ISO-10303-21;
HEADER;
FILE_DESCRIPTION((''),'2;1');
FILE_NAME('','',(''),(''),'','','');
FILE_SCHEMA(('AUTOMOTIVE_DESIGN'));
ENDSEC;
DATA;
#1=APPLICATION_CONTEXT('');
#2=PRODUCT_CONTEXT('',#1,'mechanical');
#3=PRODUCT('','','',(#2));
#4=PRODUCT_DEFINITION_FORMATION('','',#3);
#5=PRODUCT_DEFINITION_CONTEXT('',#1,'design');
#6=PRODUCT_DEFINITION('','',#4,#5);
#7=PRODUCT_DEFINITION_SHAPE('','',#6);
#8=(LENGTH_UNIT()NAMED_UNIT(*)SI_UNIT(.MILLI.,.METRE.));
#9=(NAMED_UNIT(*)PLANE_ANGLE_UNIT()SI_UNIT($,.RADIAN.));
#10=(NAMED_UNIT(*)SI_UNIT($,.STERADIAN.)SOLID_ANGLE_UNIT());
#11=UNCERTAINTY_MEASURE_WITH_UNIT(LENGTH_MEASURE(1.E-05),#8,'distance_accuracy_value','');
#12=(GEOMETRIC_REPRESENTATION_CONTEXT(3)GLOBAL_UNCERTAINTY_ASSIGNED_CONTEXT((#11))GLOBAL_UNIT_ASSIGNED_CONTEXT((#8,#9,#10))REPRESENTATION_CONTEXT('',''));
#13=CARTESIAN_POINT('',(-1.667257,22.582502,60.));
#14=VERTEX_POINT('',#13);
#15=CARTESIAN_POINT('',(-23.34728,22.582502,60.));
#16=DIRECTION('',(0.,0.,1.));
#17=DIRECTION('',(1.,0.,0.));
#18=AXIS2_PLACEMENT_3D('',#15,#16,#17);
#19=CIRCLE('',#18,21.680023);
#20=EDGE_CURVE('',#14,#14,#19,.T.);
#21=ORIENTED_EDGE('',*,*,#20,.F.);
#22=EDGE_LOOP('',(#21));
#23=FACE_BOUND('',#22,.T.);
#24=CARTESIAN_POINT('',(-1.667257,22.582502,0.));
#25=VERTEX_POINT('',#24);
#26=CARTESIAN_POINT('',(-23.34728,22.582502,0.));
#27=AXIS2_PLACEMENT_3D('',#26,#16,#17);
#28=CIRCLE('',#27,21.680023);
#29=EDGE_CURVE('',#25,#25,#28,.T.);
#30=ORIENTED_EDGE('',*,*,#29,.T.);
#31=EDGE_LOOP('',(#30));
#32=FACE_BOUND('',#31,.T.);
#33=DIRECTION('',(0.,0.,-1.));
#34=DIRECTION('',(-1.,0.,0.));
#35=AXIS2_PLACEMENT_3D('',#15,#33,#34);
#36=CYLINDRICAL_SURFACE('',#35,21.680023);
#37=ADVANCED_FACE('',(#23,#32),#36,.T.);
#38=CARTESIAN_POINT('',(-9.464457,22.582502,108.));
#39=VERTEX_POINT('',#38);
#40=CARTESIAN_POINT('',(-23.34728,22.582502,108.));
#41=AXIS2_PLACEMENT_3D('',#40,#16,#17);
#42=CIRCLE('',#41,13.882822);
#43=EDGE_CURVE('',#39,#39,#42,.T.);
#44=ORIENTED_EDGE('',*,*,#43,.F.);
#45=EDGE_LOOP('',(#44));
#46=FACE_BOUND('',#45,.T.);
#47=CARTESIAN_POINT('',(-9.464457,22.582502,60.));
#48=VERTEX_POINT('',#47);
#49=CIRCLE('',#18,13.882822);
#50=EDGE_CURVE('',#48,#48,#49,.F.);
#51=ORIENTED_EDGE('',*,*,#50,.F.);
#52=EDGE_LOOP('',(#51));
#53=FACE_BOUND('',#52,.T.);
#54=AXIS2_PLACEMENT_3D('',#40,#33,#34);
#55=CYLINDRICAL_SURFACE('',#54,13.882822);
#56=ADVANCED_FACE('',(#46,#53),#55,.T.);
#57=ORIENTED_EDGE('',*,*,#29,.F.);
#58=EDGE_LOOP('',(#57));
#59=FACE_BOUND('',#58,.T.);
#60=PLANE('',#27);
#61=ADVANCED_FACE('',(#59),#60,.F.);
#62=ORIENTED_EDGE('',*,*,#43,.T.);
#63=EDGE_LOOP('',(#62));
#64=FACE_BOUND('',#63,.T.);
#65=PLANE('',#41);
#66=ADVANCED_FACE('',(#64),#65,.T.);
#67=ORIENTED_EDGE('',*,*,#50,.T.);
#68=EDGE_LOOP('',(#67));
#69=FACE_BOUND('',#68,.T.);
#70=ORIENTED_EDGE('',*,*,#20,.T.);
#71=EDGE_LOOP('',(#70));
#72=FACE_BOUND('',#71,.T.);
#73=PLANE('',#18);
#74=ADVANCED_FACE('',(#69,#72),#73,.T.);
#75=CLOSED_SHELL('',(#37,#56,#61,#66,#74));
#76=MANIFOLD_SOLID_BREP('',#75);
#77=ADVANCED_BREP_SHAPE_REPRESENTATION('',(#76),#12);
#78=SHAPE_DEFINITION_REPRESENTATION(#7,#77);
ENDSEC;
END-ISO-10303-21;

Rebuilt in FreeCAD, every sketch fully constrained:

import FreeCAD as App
import Part
import Sketcher

V = App.Vector

doc = App.newDocument("Part")
body = doc.addObject("PartDesign::Body", "Body")

sketch1 = body.newObject("Sketcher::SketchObject", "Sketch")
sketch1.AttachmentSupport = (doc.getObject("XY_Plane"), [""])
sketch1.MapMode = "FlatFace"
sketch1.addGeometry(Part.Circle(V(-23, 23, 0), V(0, 0, 1), 22), False)
sketch1.addConstraint([
    Sketcher.Constraint("Diameter", 0, 43.360046),
    Sketcher.Constraint("DistanceX", 0, 3, -1, 1, 23.34728),
    Sketcher.Constraint("DistanceY", -1, 1, 0, 3, 22.582502),
])
pad1 = body.newObject("PartDesign::Pad", "Pad")
pad1.Profile = sketch1
pad1.Length = 60

sketch2 = body.newObject("Sketcher::SketchObject", "Sketch001")
sketch2.AttachmentSupport = (doc.getObject("XY_Plane"), [""])
sketch2.MapMode = "FlatFace"
sketch2.addGeometry(Part.Circle(V(-23, 23, 0), V(0, 0, 1), 14), False)
sketch2.addConstraint([
    Sketcher.Constraint("Diameter", 0, 27.765645),
    Sketcher.Constraint("DistanceX", 0, 3, -1, 1, 23.34728),
    Sketcher.Constraint("DistanceY", -1, 1, 0, 3, 22.582502),
])
pad2 = body.newObject("PartDesign::Pad", "Pad001")
pad2.Profile = sketch2
pad2.Length = 108

doc.recompute()
